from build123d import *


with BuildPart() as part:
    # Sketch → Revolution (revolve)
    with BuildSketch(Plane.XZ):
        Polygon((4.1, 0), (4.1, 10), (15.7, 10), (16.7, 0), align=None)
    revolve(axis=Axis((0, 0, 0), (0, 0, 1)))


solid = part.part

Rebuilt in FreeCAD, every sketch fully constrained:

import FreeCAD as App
import Part
import Sketcher


def add_polygon(sketch, points):
    """Adds a closed chain of lines whose ends are joined by coincident constraints."""
    first, n = sketch.GeometryCount, len(points)
    for a, b in zip(points, points[1:] + points[:1]):
        sketch.addGeometry(Part.LineSegment(App.Vector(*a, 0), App.Vector(*b, 0)), False)
    for i in range(n):
        sketch.addConstraint(Sketcher.Constraint("Coincident", first + i, 2, first + (i + 1) % n, 1))

doc = App.newDocument("Part")
body = doc.addObject("PartDesign::Body", "Body")

sketch1 = doc.addObject("Sketcher::SketchObject", "Sketch")
body.addObject(sketch1)
sketch1.AttachmentSupport = (doc.XZ_Plane, [""])
sketch1.MapMode = "FlatFace"
add_polygon(sketch1, [(4.1, 10), (4.1, 0), (16.7, 0), (15.7, 10)])
sketch1.addConstraint(Sketcher.Constraint("Vertical", 0))
sketch1.addConstraint(Sketcher.Constraint("Horizontal", 1))
sketch1.addConstraint(Sketcher.Constraint("Horizontal", 3))
sketch1.addConstraint(Sketcher.Constraint("PointOnObject", 0, 2, -1))
sketch1.addConstraint(Sketcher.Constraint("DistanceY", 0, 2, 0, 1, 10.0))
sketch1.addConstraint(Sketcher.Constraint("DistanceX", 1, 1, 1, 2, 12.6))
sketch1.addConstraint(Sketcher.Constraint("DistanceX", 3, 2, 3, 1, 11.6))
sketch1.addConstraint(Sketcher.Constraint("DistanceX", -1, 1, 0, 2, 4.1))
revolution = doc.addObject("PartDesign::Revolution", "Revolution")
body.addObject(revolution)
revolution.Profile = sketch1
revolution.ReferenceAxis = (sketch1, ["V_Axis"])
revolution.Angle = 360

doc.recompute()
